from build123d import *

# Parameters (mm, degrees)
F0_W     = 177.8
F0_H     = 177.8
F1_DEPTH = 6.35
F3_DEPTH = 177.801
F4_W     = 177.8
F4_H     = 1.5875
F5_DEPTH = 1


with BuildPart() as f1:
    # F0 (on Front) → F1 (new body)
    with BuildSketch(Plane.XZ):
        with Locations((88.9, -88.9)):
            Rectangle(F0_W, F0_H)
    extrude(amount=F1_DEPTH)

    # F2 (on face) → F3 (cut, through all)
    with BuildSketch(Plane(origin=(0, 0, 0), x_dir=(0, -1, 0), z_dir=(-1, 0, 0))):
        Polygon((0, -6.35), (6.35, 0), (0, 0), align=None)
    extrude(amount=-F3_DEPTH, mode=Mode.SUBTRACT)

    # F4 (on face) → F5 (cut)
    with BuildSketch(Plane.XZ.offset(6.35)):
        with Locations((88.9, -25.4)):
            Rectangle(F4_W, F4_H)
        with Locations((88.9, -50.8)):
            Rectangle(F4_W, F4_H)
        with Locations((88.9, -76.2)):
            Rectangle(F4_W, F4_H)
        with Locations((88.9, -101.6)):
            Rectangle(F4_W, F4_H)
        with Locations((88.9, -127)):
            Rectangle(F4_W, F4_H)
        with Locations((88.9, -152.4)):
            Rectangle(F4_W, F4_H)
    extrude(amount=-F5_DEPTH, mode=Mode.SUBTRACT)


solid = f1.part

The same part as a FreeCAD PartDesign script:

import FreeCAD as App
import Part
import Sketcher
Q = App.Units.Quantity

doc = App.newDocument("Part")
params = doc.addObject("Spreadsheet::Sheet", "Params")
for row, (alias, value) in enumerate([
    ("sketch1_width", "7 in"),
    ("pad1_length", "0.25 in"),
    ("sketch2_width", "0.25 in"),
    ("sketch3_width", "7 in"),
    ("sketch3_height", "0.0625 in"),
    ("pocket2_length", "1 mm"),
], start=1):
    params.set(f"A{row}", alias)
    params.set(f"B{row}", "=" + value)
    params.setAlias(f"B{row}", alias)

body = doc.addObject("PartDesign::Body", "Body")

# Sketch on XZ plane
sketch1 = body.newObject("Sketcher::SketchObject", "Sketch")
sketch1.AttachmentSupport = (doc.getObject("XZ_Plane"), [""])
sketch1.MapMode = "FlatFace"
sketch1.addGeometry([
    Part.LineSegment(App.Vector(0, 0, 0), App.Vector(0, -178, 0)),
    Part.LineSegment(App.Vector(0, -178, 0), App.Vector(178, -178, 0)),
    Part.LineSegment(App.Vector(178, -178, 0), App.Vector(178, 0, 0)),
    Part.LineSegment(App.Vector(178, 0, 0), App.Vector(0, 0, 0)),
], False)
sketch1.addConstraint([
    Sketcher.Constraint("Coincident", 0, 2, 1, 1),
    Sketcher.Constraint("Coincident", 1, 2, 2, 1),
    Sketcher.Constraint("Coincident", 2, 2, 3, 1),
    Sketcher.Constraint("Coincident", 3, 2, 0, 1),
    Sketcher.Constraint("Vertical", 0),
    Sketcher.Constraint("Horizontal", 1),
    Sketcher.Constraint("Vertical", 2),
    Sketcher.Constraint("Horizontal", 3),
    Sketcher.Constraint("Coincident", 3, 2, -1, 1),
    Sketcher.Constraint("Equal", 3, 0),
    Sketcher.Constraint("DistanceX", 1, 1, 1, 2, Q("7 in")),
])
sketch1.setExpression("Constraints[10]", "Params.sketch1_width")
pad1 = body.newObject("PartDesign::Pad", "Pad")
pad1.Profile = sketch1
pad1.setExpression("Length", "Params.pad1_length")

# Sketch on YZ plane
sketch2 = body.newObject("Sketcher::SketchObject", "Sketch001")
sketch2.AttachmentSupport = (doc.getObject("YZ_Plane"), [""])
sketch2.MapMode = "FlatFace"
sketch2.addGeometry([
    Part.LineSegment(App.Vector(0, -6, 0), App.Vector(-6, 0, 0)),
    Part.LineSegment(App.Vector(-6, 0, 0), App.Vector(0, 0, 0)),
    Part.LineSegment(App.Vector(0, 0, 0), App.Vector(0, -6, 0)),
], False)
sketch2.addConstraint([
    Sketcher.Constraint("Coincident", 0, 2, 1, 1),
    Sketcher.Constraint("Coincident", 1, 2, 2, 1),
    Sketcher.Constraint("Coincident", 2, 2, 0, 1),
    Sketcher.Constraint("Horizontal", 1),
    Sketcher.Constraint("Vertical", 2),
    Sketcher.Constraint("Coincident", 1, 2, -1, 1),
    Sketcher.Constraint("Equal", 1, 2),
    Sketcher.Constraint("DistanceX", 1, 1, 1, 2, Q("0.25 in")),
])
sketch2.setExpression("Constraints[7]", "Params.sketch2_width")
pocket1 = body.newObject("PartDesign::Pocket", "Pocket")
pocket1.Profile = sketch2
pocket1.Type = "ThroughAll"
pocket1.Reversed = True

# Sketch on XZ plane
sketch3 = body.newObject("Sketcher::SketchObject", "Sketch002")
sketch3.AttachmentSupport = (doc.getObject("XZ_Plane"), [""])
sketch3.MapMode = "FlatFace"
sketch3.AttachmentOffset = App.Placement(App.Vector(0, 0, 0.25 * 25.4), App.Rotation())
sketch3.addGeometry([
    Part.LineSegment(App.Vector(0, -24.6, 0), App.Vector(0, -26.2, 0)),  # 0
    Part.LineSegment(App.Vector(0, -26.2, 0), App.Vector(177.8, -26.2, 0)),  # 1
    Part.LineSegment(App.Vector(177.8, -26.2, 0), App.Vector(177.8, -24.6, 0)),  # 2
    Part.LineSegment(App.Vector(177.8, -24.6, 0), App.Vector(0, -24.6, 0)),  # 3
    Part.LineSegment(App.Vector(0, -50, 0), App.Vector(0, -51.6, 0)),  # 4
    Part.LineSegment(App.Vector(0, -51.6, 0), App.Vector(177.8, -51.6, 0)),  # 5
    Part.LineSegment(App.Vector(177.8, -51.6, 0), App.Vector(177.8, -50, 0)),  # 6
    Part.LineSegment(App.Vector(177.8, -50, 0), App.Vector(0, -50, 0)),  # 7
    Part.LineSegment(App.Vector(0, -75.4, 0), App.Vector(0, -77, 0)),  # 8
    Part.LineSegment(App.Vector(0, -77, 0), App.Vector(177.8, -77, 0)),  # 9
    Part.LineSegment(App.Vector(177.8, -77, 0), App.Vector(177.8, -75.4, 0)),  # 10
    Part.LineSegment(App.Vector(177.8, -75.4, 0), App.Vector(0, -75.4, 0)),  # 11
    Part.LineSegment(App.Vector(0, -100.8, 0), App.Vector(0, -102.4, 0)),  # 12
    Part.LineSegment(App.Vector(0, -102.4, 0), App.Vector(177.8, -102.4, 0)),  # 13
    Part.LineSegment(App.Vector(177.8, -102.4, 0), App.Vector(177.8, -100.8, 0)),  # 14
    Part.LineSegment(App.Vector(177.8, -100.8, 0), App.Vector(0, -100.8, 0)),  # 15
    Part.LineSegment(App.Vector(0, -126.2, 0), App.Vector(0, -127.8, 0)),  # 16
    Part.LineSegment(App.Vector(0, -127.8, 0), App.Vector(177.8, -127.8, 0)),  # 17
    Part.LineSegment(App.Vector(177.8, -127.8, 0), App.Vector(177.8, -126.2, 0)),  # 18
    Part.LineSegment(App.Vector(177.8, -126.2, 0), App.Vector(0, -126.2, 0)),  # 19
    Part.LineSegment(App.Vector(0, -151.6, 0), App.Vector(0, -153.2, 0)),  # 20
    Part.LineSegment(App.Vector(0, -153.2, 0), App.Vector(177.8, -153.2, 0)),  # 21
    Part.LineSegment(App.Vector(177.8, -153.2, 0), App.Vector(177.8, -151.6, 0)),  # 22
    Part.LineSegment(App.Vector(177.8, -151.6, 0), App.Vector(0, -151.6, 0)),  # 23
], False)
sketch3.addConstraint([
    Sketcher.Constraint("Coincident", 0, 2, 1, 1),
    Sketcher.Constraint("Coincident", 1, 2, 2, 1),
    Sketcher.Constraint("Coincident", 2, 2, 3, 1),
    Sketcher.Constraint("Coincident", 3, 2, 0, 1),
    Sketcher.Constraint("Coincident", 4, 2, 5, 1),
    Sketcher.Constraint("Coincident", 5, 2, 6, 1),
    Sketcher.Constraint("Coincident", 6, 2, 7, 1),
    Sketcher.Constraint("Coincident", 7, 2, 4, 1),
    Sketcher.Constraint("Coincident", 8, 2, 9, 1),
    Sketcher.Constraint("Coincident", 9, 2, 10, 1),
    Sketcher.Constraint("Coincident", 10, 2, 11, 1),
    Sketcher.Constraint("Coincident", 11, 2, 8, 1),
    Sketcher.Constraint("Coincident", 12, 2, 13, 1),
    Sketcher.Constraint("Coincident", 13, 2, 14, 1),
    Sketcher.Constraint("Coincident", 14, 2, 15, 1),
    Sketcher.Constraint("Coincident", 15, 2, 12, 1),
    Sketcher.Constraint("Coincident", 16, 2, 17, 1),
    Sketcher.Constraint("Coincident", 17, 2, 18, 1),
    Sketcher.Constraint("Coincident", 18, 2, 19, 1),
    Sketcher.Constraint("Coincident", 19, 2, 16, 1),
    Sketcher.Constraint("Coincident", 20, 2, 21, 1),
    Sketcher.Constraint("Coincident", 21, 2, 22, 1),
    Sketcher.Constraint("Coincident", 22, 2, 23, 1),
    Sketcher.Constraint("Coincident", 23, 2, 20, 1),
    Sketcher.Constraint("Vertical", 0),
    Sketcher.Constraint("Horizontal", 1),
    Sketcher.Constraint("Vertical", 2),
    Sketcher.Constraint("Horizontal", 3),
    Sketcher.Constraint("Vertical", 4),
    Sketcher.Constraint("Horizontal", 5),
    Sketcher.Constraint("Vertical", 6),
    Sketcher.Constraint("Horizontal", 7),
    Sketcher.Constraint("Vertical", 8),
    Sketcher.Constraint("Horizontal", 9),
    Sketcher.Constraint("Vertical", 10),
    Sketcher.Constraint("Horizontal", 11),
    Sketcher.Constraint("Vertical", 12),
    Sketcher.Constraint("Horizontal", 13),
    Sketcher.Constraint("Vertical", 14),
    Sketcher.Constraint("Horizontal", 15),
    Sketcher.Constraint("Vertical", 16),
    Sketcher.Constraint("Horizontal", 17),
    Sketcher.Constraint("Vertical", 18),
    Sketcher.Constraint("Horizontal", 19),
    Sketcher.Constraint("Vertical", 20),
    Sketcher.Constraint("Horizontal", 21),
    Sketcher.Constraint("Vertical", 22),
    Sketcher.Constraint("Horizontal", 23),
    Sketcher.Constraint("PointOnObject", 0, 2, -2),
    Sketcher.Constraint("PointOnObject", 4, 2, -2),
    Sketcher.Constraint("PointOnObject", 8, 2, -2),
    Sketcher.Constraint("PointOnObject", 12, 2, -2),
    Sketcher.Constraint("PointOnObject", 16, 2, -2),
    Sketcher.Constraint("PointOnObject", 20, 2, -2),
    Sketcher.Constraint("Vertical", 2, 2, 5, 2),
    Sketcher.Constraint("Vertical", 6, 2, 9, 2),
    Sketcher.Constraint("Vertical", 10, 2, 13, 2),
    Sketcher.Constraint("Vertical", 14, 2, 17, 2),
    Sketcher.Constraint("Vertical", 18, 2, 21, 2),
    Sketcher.Constraint("Equal", 2, 4),
    Sketcher.Constraint("Equal", 6, 8),
    Sketcher.Constraint("Equal", 10, 12),
    Sketcher.Constraint("Equal", 14, 16),
    Sketcher.Constraint("Equal", 18, 20),
    Sketcher.Constraint("DistanceX", 1, 1, 1, 2, Q("7 in")),
    Sketcher.Constraint("DistanceY", 4, 2, 0, 2, Q("1 in")),
    Sketcher.Constraint("DistanceY", 8, 2, 4, 2, Q("1 in")),
    Sketcher.Constraint("DistanceY", 12, 2, 8, 2, Q("1 in")),
    Sketcher.Constraint("DistanceY", 16, 2, 12, 2, Q("1 in")),
    Sketcher.Constraint("DistanceY", 20, 2, 16, 2, Q("1 in")),
    Sketcher.Constraint("DistanceY", 0, 2, 0, 1, Q("0.0625 in")),
    Sketcher.Constraint("DistanceY", 0, 2, -1, 1, Q("1.03125 in")),
])
sketch3.setExpression("Constraints[64]", "Params.sketch3_width")
sketch3.setExpression("Constraints[70]", "Params.sketch3_height")
pocket2 = body.newObject("PartDesign::Pocket", "Pocket001")
pocket2.Profile = sketch3
pocket2.setExpression("Length", "Params.pocket2_length")

doc.recompute()
